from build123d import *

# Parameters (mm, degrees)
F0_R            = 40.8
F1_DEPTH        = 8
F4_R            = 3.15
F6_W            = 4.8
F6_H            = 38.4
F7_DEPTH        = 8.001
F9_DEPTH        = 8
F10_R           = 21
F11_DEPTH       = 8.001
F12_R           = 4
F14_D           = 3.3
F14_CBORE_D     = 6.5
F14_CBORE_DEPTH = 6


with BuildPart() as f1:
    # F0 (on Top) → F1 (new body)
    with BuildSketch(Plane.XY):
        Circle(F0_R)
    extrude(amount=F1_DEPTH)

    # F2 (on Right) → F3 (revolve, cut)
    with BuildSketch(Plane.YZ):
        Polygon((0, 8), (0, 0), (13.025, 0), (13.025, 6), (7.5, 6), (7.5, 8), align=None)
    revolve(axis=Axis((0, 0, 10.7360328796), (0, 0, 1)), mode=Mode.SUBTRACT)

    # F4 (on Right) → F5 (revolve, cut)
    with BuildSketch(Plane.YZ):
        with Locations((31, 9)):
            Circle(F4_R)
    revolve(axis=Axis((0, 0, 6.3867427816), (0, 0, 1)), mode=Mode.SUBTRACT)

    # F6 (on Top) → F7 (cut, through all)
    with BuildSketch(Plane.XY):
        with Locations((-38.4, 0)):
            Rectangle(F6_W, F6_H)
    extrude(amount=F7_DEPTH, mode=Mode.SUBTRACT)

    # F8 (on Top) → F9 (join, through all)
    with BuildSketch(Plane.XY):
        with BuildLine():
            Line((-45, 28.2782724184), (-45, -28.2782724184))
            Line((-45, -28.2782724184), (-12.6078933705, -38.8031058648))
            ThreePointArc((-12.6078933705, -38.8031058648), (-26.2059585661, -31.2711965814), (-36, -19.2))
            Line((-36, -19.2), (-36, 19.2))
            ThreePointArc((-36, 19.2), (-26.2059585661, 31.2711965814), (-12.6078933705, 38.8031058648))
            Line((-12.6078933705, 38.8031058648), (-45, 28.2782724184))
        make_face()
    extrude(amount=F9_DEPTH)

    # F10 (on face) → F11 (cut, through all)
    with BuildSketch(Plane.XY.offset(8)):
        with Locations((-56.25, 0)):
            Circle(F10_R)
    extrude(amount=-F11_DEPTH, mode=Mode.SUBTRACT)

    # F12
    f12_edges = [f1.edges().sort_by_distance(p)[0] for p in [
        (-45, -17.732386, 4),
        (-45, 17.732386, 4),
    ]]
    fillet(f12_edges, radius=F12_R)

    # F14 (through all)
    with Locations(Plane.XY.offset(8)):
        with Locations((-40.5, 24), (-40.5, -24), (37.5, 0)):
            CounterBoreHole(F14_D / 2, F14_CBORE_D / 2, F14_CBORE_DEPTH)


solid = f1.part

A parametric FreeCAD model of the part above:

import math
import FreeCAD as App
import Part
import Sketcher
Q = App.Units.Quantity


def edges_at(feature, points):
    """Names of the edges that pass closest to the given points."""
    edges = feature.Shape.Edges
    near = lambda p: min(range(len(edges)), key=lambda i: edges[i].distToShape(Part.Vertex(*p))[0])
    return sorted({f"Edge{near(p) + 1}" for p in points})


def add_polygon(sketch, points):
    """Adds a closed chain of lines whose ends are joined by coincident constraints."""
    first, n = sketch.GeometryCount, len(points)
    for a, b in zip(points, points[1:] + points[:1]):
        sketch.addGeometry(Part.LineSegment(App.Vector(*a, 0), App.Vector(*b, 0)), False)
    for i in range(n):
        sketch.addConstraint(Sketcher.Constraint("Coincident", first + i, 2, first + (i + 1) % n, 1))

doc = App.newDocument("Part")
params = doc.addObject("Spreadsheet::Sheet", "Params")
for row, (alias, value) in enumerate([
    ("sketch1_diameter", "81.6 mm"),
    ("pad1_length", "8 mm"),
    ("sketch2_height", "8 mm"),
    ("sketch2_height2", "6 mm"),
    ("sketch2_width", "7.5 mm"),
    ("groove_angle", "360 deg"),
    ("sketch3_diameter", "6.3 mm"),
    ("groove2_angle", "360 deg"),
    ("sketch4_width", "4.8 mm"),
    ("sketch4_height", "38.4 mm"),
    ("sketch5_radius", "40.8 mm"),
    ("sketch5_height", "38.4 mm"),
    ("pad2_length", "8 mm"),
    ("sketch6_diameter", "42 mm"),
    ("fillet_radius", "4 mm"),
    ("sketch7_diameter", "3.3 mm"),
    ("hole_diameter", "3.3 mm"),
    ("hole_cbore_diameter", "6.5 mm"),
    ("hole_cbore_depth", "6 mm"),
], start=1):
    params.set(f"A{row}", alias)
    params.set(f"B{row}", "=" + value)
    params.setAlias(f"B{row}", alias)

body = doc.addObject("PartDesign::Body", "Body")

sketch1 = body.newObject("Sketcher::SketchObject", "Sketch")
sketch1.AttachmentSupport = (doc.getObject("XY_Plane"), [""])
sketch1.MapMode = "FlatFace"
sketch1.addGeometry(Part.Circle(App.Vector(0, 0, 0), App.Vector(0, 0, 1), 41), False)
sketch1.addConstraint(Sketcher.Constraint("Coincident", 0, 3, -1, 1))
sketch1.addConstraint(Sketcher.Constraint("Diameter", 0, Q("81.6 mm")))
sketch1.setExpression("Constraints[1]", "Params.sketch1_diameter")
pad1 = body.newObject("PartDesign::Pad", "Pad")
pad1.Profile = sketch1
pad1.setExpression("Length", "Params.pad1_length")

sketch2 = body.newObject("Sketcher::SketchObject", "Sketch001")
sketch2.AttachmentSupport = (doc.getObject("YZ_Plane"), [""])
sketch2.MapMode = "FlatFace"
add_polygon(sketch2, [(0, 8), (0, 0), (13, 0), (13, 6), (7.5, 6), (7.5, 8)])
sketch2.addConstraint(Sketcher.Constraint("Vertical", 0))
sketch2.addConstraint(Sketcher.Constraint("Horizontal", 1))
sketch2.addConstraint(Sketcher.Constraint("Vertical", 2))
sketch2.addConstraint(Sketcher.Constraint("Horizontal", 3))
sketch2.addConstraint(Sketcher.Constraint("Vertical", 4))
sketch2.addConstraint(Sketcher.Constraint("Horizontal", 5))
sketch2.addConstraint(Sketcher.Constraint("Coincident", 0, 2, -1, 1))
sketch2.addConstraint(Sketcher.Constraint("DistanceY", 0, 2, 0, 1, Q("8 mm")))
sketch2.addConstraint(Sketcher.Constraint("DistanceY", 2, 1, 2, 2, Q("6 mm")))
sketch2.addConstraint(Sketcher.Constraint("DistanceX", 5, 2, 5, 1, Q("7.5 mm")))
sketch2.addConstraint(Sketcher.Constraint("DistanceX", 1, 1, 1, 2, Q("13.025 mm")))
sketch2.setExpression("Constraints[13]", "Params.sketch2_height")
sketch2.setExpression("Constraints[14]", "Params.sketch2_height2")
sketch2.setExpression("Constraints[15]", "Params.sketch2_width")
groove = body.newObject("PartDesign::Groove", "Groove")
groove.Profile = sketch2
groove.ReferenceAxis = (sketch2, ["V_Axis"])
groove.setExpression("Angle", "Params.groove_angle")

sketch3 = body.newObject("Sketcher::SketchObject", "Sketch002")
sketch3.AttachmentSupport = (doc.getObject("YZ_Plane"), [""])
sketch3.MapMode = "FlatFace"
sketch3.addGeometry(Part.Circle(App.Vector(31, 9, 0), App.Vector(0, 0, 1), 3.1), False)
sketch3.addConstraint(Sketcher.Constraint("Diameter", 0, Q("6.3 mm")))
sketch3.addConstraint(Sketcher.Constraint("DistanceX", -1, 1, 0, 3, Q("31 mm")))
sketch3.addConstraint(Sketcher.Constraint("DistanceY", -1, 1, 0, 3, Q("9 mm")))
sketch3.setExpression("Constraints[0]", "Params.sketch3_diameter")
groove2 = body.newObject("PartDesign::Groove", "Groove001")
groove2.Profile = sketch3
groove2.ReferenceAxis = (sketch3, ["V_Axis"])
groove2.setExpression("Angle", "Params.groove2_angle")

sketch4 = body.newObject("Sketcher::SketchObject", "Sketch003")
sketch4.AttachmentSupport = (doc.getObject("XY_Plane"), [""])
sketch4.MapMode = "FlatFace"
add_polygon(sketch4, [(-40.8, 19.2), (-40.8, -19.2), (-36, -19.2), (-36, 19.2)])
sketch4.addConstraint(Sketcher.Constraint("Vertical", 0))
sketch4.addConstraint(Sketcher.Constraint("Horizontal", 1))
sketch4.addConstraint(Sketcher.Constraint("Vertical", 2))
sketch4.addConstraint(Sketcher.Constraint("Horizontal", 3))
sketch4.addConstraint(Sketcher.Constraint("DistanceX", 1, 1, 1, 2, Q("4.8 mm")))
sketch4.addConstraint(Sketcher.Constraint("DistanceY", 0, 2, 0, 1, Q("38.4 mm")))
sketch4.addConstraint(Sketcher.Constraint("DistanceX", 1, 2, -1, 1, Q("36 mm")))
sketch4.addConstraint(Sketcher.Constraint("DistanceY", 0, 2, -1, 1, Q("19.2 mm")))
sketch4.setExpression("Constraints[8]", "Params.sketch4_width")
sketch4.setExpression("Constraints[9]", "Params.sketch4_height")
pocket1 = body.newObject("PartDesign::Pocket", "Pocket")
pocket1.Profile = sketch4
pocket1.Type = "ThroughAll"
pocket1.Reversed = True

sketch5 = body.newObject("Sketcher::SketchObject", "Sketch004")
sketch5.AttachmentSupport = (doc.getObject("XY_Plane"), [""])
sketch5.MapMode = "FlatFace"
sketch5.addGeometry(Part.LineSegment(App.Vector(-45, 28, 0), App.Vector(-45, -28, 0)), False)
sketch5.addGeometry(Part.LineSegment(App.Vector(-45, -28, 0), App.Vector(-13, -39, 0)), False)
sketch5.addGeometry(Part.ArcOfCircle(Part.Circle(App.Vector(0, 0, 0), App.Vector(0, 0, 1), 41), math.radians(-152), math.radians(-108)), False)
sketch5.addGeometry(Part.LineSegment(App.Vector(-36, -19, 0), App.Vector(-36, 19, 0)), False)
sketch5.addGeometry(Part.ArcOfCircle(Part.Circle(App.Vector(0, 0, 0), App.Vector(0, 0, 1), 41), math.radians(108), math.radians(152)), False)
sketch5.addGeometry(Part.LineSegment(App.Vector(-13, 39, 0), App.Vector(-45, 28, 0)), False)
sketch5.addConstraint(Sketcher.Constraint("Coincident", 0, 2, 1, 1))
sketch5.addConstraint(Sketcher.Constraint("Tangent", 1, 2, 2, 2))
sketch5.addConstraint(Sketcher.Constraint("Coincident", 2, 1, 3, 1))
sketch5.addConstraint(Sketcher.Constraint("Coincident", 3, 2, 4, 2))
sketch5.addConstraint(Sketcher.Constraint("Tangent", 4, 1, 5, 1))
sketch5.addConstraint(Sketcher.Constraint("Coincident", 5, 2, 0, 1))
sketch5.addConstraint(Sketcher.Constraint("Vertical", 0))
sketch5.addConstraint(Sketcher.Constraint("Vertical", 3))
sketch5.addConstraint(Sketcher.Constraint("Coincident", 2, 3, -1, 1))
sketch5.addConstraint(Sketcher.Constraint("Coincident", 4, 3, -1, 1))
sketch5.addConstraint(Sketcher.Constraint("Equal", 2, 4))
sketch5.addConstraint(Sketcher.Constraint("Vertical", 1, 2, 4, 1))
sketch5.addConstraint(Sketcher.Constraint("Radius", 2, Q("40.8 mm")))
sketch5.addConstraint(Sketcher.Constraint("Angle", 1, Q("-18 deg")))
sketch5.addConstraint(Sketcher.Constraint("DistanceY", 3, 1, 3, 2, Q("38.4 mm")))
sketch5.addConstraint(Sketcher.Constraint("DistanceX", 0, 2, -1, 1, Q("45 mm")))
sketch5.setExpression("Constraints[12]", "Params.sketch5_radius")
sketch5.setExpression("Constraints[14]", "Params.sketch5_height")
pad2 = body.newObject("PartDesign::Pad", "Pad001")
pad2.Profile = sketch5
pad2.setExpression("Length", "Params.pad2_length")

sketch6 = body.newObject("Sketcher::SketchObject", "Sketch005")
sketch6.AttachmentSupport = (doc.getObject("XY_Plane"), [""])
sketch6.MapMode = "FlatFace"
sketch6.AttachmentOffset = App.Placement(App.Vector(0, 0, 8), App.Rotation())
sketch6.addGeometry(Part.Circle(App.Vector(-56, 0, 0), App.Vector(0, 0, 1), 21), False)
sketch6.addConstraint(Sketcher.Constraint("PointOnObject", 0, 3, -1))
sketch6.addConstraint(Sketcher.Constraint("Diameter", 0, Q("42 mm")))
sketch6.addConstraint(Sketcher.Constraint("DistanceX", 0, 3, -1, 1, Q("56.25 mm")))
sketch6.setExpression("Constraints[1]", "Params.sketch6_diameter")
pocket2 = body.newObject("PartDesign::Pocket", "Pocket001")
pocket2.Profile = sketch6
pocket2.Type = "ThroughAll"
doc.recompute()

fillet = body.newObject("PartDesign::Fillet", "Fillet")
fillet.Base = (pocket2, edges_at(pocket2, [(-45, -17.732, 4), (-45, 17.732, 4)]))
fillet.setExpression("Radius", "Params.fillet_radius")

sketch7 = body.newObject("Sketcher::SketchObject", "Sketch006")
sketch7.AttachmentSupport = (doc.getObject("XY_Plane"), [""])
sketch7.MapMode = "FlatFace"
sketch7.AttachmentOffset = App.Placement(App.Vector(0, 0, 8), App.Rotation())
sketch7.addGeometry(Part.Circle(App.Vector(-40.5, 24, 0), App.Vector(0, 0, 1), 1.6), False)
sketch7.addGeometry(Part.Circle(App.Vector(-40.5, -24, 0), App.Vector(0, 0, 1), 1.6), False)
sketch7.addGeometry(Part.Circle(App.Vector(37.5, 0, 0), App.Vector(0, 0, 1), 1.6), False)
sketch7.addConstraint(Sketcher.Constraint("Equal", 0, 1))
sketch7.addConstraint(Sketcher.Constraint("Equal", 1, 2))
sketch7.addConstraint(Sketcher.Constraint("Symmetric", 0, 3, 1, 3, -1))
sketch7.addConstraint(Sketcher.Constraint("PointOnObject", 2, 3, -1))
sketch7.addConstraint(Sketcher.Constraint("Diameter", 0, Q("3.3 mm")))
sketch7.addConstraint(Sketcher.Constraint("DistanceY", -1, 1, 0, 3, Q("24 mm")))
sketch7.addConstraint(Sketcher.Constraint("DistanceX", 0, 3, 2, 3, Q("78 mm")))
sketch7.addConstraint(Sketcher.Constraint("DistanceX", 0, 3, -1, 1, Q("40.5 mm")))
sketch7.setExpression("Constraints[4]", "Params.sketch7_diameter")
doc.recompute()
hole = body.newObject("PartDesign::Hole", "Hole")
hole.Profile = sketch7
hole.ThreadType = "None"
hole.setExpression("Diameter", "Params.hole_diameter")
hole.DepthType = "ThroughAll"
hole.HoleCutType = "Counterbore"
hole.setExpression("HoleCutDiameter", "Params.hole_cbore_diameter")
hole.setExpression("HoleCutDepth", "Params.hole_cbore_depth")

doc.recompute()
